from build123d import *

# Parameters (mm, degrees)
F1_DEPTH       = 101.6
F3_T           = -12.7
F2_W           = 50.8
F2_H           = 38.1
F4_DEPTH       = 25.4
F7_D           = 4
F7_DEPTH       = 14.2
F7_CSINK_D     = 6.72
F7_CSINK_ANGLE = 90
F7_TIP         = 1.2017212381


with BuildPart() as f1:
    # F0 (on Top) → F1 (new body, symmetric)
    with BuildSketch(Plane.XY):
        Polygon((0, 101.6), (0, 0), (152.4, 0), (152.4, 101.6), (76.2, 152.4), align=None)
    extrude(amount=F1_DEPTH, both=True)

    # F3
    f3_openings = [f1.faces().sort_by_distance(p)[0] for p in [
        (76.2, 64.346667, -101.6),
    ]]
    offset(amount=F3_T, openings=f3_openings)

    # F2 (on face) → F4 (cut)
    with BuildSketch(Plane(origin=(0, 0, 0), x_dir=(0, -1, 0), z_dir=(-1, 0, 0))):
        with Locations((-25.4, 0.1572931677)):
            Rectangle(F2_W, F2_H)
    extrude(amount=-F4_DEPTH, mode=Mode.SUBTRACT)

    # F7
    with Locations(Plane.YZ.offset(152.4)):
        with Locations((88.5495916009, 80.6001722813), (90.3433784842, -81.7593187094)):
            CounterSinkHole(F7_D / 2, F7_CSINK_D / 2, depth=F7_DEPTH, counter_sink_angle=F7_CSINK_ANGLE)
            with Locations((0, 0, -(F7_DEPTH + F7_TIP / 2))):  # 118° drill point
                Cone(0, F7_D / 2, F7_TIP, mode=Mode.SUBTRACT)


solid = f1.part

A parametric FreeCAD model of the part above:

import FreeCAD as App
import Part
import Sketcher

V = App.Vector
Q = App.Units.Quantity


def faces_at(feature, points):
    """Names of the faces that lie closest to the given points."""
    faces = feature.Shape.Faces
    near = lambda p: min(range(len(faces)), key=lambda i: faces[i].distToShape(Part.Vertex(*p))[0])
    return sorted({f"Face{near(p) + 1}" for p in points})

doc = App.newDocument("Part")
body = doc.addObject("PartDesign::Body", "Body")

sketch1 = body.newObject("Sketcher::SketchObject", "Sketch")
sketch1.AttachmentSupport = (doc.getObject("XY_Plane"), [""])
sketch1.MapMode = "FlatFace"
sketch1.addGeometry([
    Part.LineSegment(V(0, 102, 0), V(0, 0, 0)),
    Part.LineSegment(V(0, 0, 0), V(152, 0, 0)),
    Part.LineSegment(V(152, 0, 0), V(152, 102, 0)),
    Part.LineSegment(V(152, 102, 0), V(76, 152, 0)),
    Part.LineSegment(V(76, 152, 0), V(0, 102, 0)),
], False)
sketch1.addConstraint([
    Sketcher.Constraint("Coincident", 0, 2, 1, 1),
    Sketcher.Constraint("Coincident", 1, 2, 2, 1),
    Sketcher.Constraint("Coincident", 2, 2, 3, 1),
    Sketcher.Constraint("Coincident", 3, 2, 4, 1),
    Sketcher.Constraint("Coincident", 4, 2, 0, 1),
    Sketcher.Constraint("Vertical", 0),
    Sketcher.Constraint("Horizontal", 1),
    Sketcher.Constraint("Vertical", 2),
    Sketcher.Constraint("Coincident", 0, 2, -1, 1),
    Sketcher.Constraint("Horizontal", 2, 2, 4, 2),
    Sketcher.Constraint("Equal", 3, 4),
    Sketcher.Constraint("DistanceX", 1, 1, 1, 2, Q("6 in")),
    Sketcher.Constraint("DistanceY", 0, 2, 0, 1, Q("4 in")),
    Sketcher.Constraint("DistanceY", -1, 1, 3, 2, Q("6 in")),
])
pad1 = body.newObject("PartDesign::Pad", "Pad")
pad1.Profile = sketch1
pad1.Length = Q("8 in")
pad1.Midplane = True
doc.recompute()

thickness = body.newObject("PartDesign::Thickness", "Thickness")
thickness.Base = (pad1, faces_at(pad1, [(76.2, 76.2, -101.6)]))
thickness.Value = Q("0.5 in")
thickness.Reversed = True
thickness.Join = "Arc"

sketch2 = body.newObject("Sketcher::SketchObject", "Sketch001")
sketch2.AttachmentSupport = (doc.getObject("YZ_Plane"), [""])
sketch2.MapMode = "FlatFace"
sketch2.addGeometry([
    Part.LineSegment(V(51, 19, 0), V(51, -19, 0)),
    Part.LineSegment(V(51, -19, 0), V(0, -19, 0)),
    Part.LineSegment(V(0, -19, 0), V(0, 19, 0)),
    Part.LineSegment(V(0, 19, 0), V(51, 19, 0)),
], False)
sketch2.addConstraint([
    Sketcher.Constraint("Coincident", 0, 2, 1, 1),
    Sketcher.Constraint("Coincident", 1, 2, 2, 1),
    Sketcher.Constraint("Coincident", 2, 2, 3, 1),
    Sketcher.Constraint("Coincident", 3, 2, 0, 1),
    Sketcher.Constraint("Vertical", 0),
    Sketcher.Constraint("Horizontal", 1),
    Sketcher.Constraint("Vertical", 2),
    Sketcher.Constraint("Horizontal", 3),
    Sketcher.Constraint("PointOnObject", 1, 2, -2),
    Sketcher.Constraint("DistanceX", 1, 2, 1, 1, Q("2 in")),
    Sketcher.Constraint("DistanceY", 0, 2, 0, 1, Q("1.5 in")),
    Sketcher.Constraint("DistanceY", 0, 2, -1, 1, Q("18.892707 mm")),
])
pocket1 = body.newObject("PartDesign::Pocket", "Pocket")
pocket1.Profile = sketch2
pocket1.Length = Q("1 in")
pocket1.Reversed = True

sketch3 = body.newObject("Sketcher::SketchObject", "Sketch002")
sketch3.AttachmentSupport = (doc.getObject("YZ_Plane"), [""])
sketch3.MapMode = "FlatFace"
sketch3.AttachmentOffset = App.Placement(V(0, 0, 6 * 25.4), App.Rotation())
sketch3.addGeometry([
    Part.Circle(V(88.5, 80.6, 0), V(0, 0, 1), 2),
    Part.Circle(V(90.3, -81.8, 0), V(0, 0, 1), 2),
], False)
sketch3.addConstraint([
    Sketcher.Constraint("Equal", 0, 1),
    Sketcher.Constraint("Diameter", 0, Q("4 mm")),
    Sketcher.Constraint("DistanceX", -1, 1, 0, 3, Q("88.549592 mm")),
    Sketcher.Constraint("DistanceX", -1, 1, 1, 3, Q("90.343378 mm")),
    Sketcher.Constraint("DistanceY", 1, 3, -1, 1, Q("81.759319 mm")),
    Sketcher.Constraint("DistanceY", 1, 3, 0, 3, Q("162.359491 mm")),
])
doc.recompute()
hole = body.newObject("PartDesign::Hole", "Hole")
hole.Profile = sketch3
hole.ThreadType = "None"
hole.Diameter = 4
hole.DepthType = "Dimension"
hole.Depth = 14.2
hole.DrillPoint = "Angled"
hole.DrillPointAngle = 118
hole.HoleCutType = "Countersink"
hole.HoleCutDiameter = 6.72
hole.HoleCutCountersinkAngle = 90

doc.recompute()
